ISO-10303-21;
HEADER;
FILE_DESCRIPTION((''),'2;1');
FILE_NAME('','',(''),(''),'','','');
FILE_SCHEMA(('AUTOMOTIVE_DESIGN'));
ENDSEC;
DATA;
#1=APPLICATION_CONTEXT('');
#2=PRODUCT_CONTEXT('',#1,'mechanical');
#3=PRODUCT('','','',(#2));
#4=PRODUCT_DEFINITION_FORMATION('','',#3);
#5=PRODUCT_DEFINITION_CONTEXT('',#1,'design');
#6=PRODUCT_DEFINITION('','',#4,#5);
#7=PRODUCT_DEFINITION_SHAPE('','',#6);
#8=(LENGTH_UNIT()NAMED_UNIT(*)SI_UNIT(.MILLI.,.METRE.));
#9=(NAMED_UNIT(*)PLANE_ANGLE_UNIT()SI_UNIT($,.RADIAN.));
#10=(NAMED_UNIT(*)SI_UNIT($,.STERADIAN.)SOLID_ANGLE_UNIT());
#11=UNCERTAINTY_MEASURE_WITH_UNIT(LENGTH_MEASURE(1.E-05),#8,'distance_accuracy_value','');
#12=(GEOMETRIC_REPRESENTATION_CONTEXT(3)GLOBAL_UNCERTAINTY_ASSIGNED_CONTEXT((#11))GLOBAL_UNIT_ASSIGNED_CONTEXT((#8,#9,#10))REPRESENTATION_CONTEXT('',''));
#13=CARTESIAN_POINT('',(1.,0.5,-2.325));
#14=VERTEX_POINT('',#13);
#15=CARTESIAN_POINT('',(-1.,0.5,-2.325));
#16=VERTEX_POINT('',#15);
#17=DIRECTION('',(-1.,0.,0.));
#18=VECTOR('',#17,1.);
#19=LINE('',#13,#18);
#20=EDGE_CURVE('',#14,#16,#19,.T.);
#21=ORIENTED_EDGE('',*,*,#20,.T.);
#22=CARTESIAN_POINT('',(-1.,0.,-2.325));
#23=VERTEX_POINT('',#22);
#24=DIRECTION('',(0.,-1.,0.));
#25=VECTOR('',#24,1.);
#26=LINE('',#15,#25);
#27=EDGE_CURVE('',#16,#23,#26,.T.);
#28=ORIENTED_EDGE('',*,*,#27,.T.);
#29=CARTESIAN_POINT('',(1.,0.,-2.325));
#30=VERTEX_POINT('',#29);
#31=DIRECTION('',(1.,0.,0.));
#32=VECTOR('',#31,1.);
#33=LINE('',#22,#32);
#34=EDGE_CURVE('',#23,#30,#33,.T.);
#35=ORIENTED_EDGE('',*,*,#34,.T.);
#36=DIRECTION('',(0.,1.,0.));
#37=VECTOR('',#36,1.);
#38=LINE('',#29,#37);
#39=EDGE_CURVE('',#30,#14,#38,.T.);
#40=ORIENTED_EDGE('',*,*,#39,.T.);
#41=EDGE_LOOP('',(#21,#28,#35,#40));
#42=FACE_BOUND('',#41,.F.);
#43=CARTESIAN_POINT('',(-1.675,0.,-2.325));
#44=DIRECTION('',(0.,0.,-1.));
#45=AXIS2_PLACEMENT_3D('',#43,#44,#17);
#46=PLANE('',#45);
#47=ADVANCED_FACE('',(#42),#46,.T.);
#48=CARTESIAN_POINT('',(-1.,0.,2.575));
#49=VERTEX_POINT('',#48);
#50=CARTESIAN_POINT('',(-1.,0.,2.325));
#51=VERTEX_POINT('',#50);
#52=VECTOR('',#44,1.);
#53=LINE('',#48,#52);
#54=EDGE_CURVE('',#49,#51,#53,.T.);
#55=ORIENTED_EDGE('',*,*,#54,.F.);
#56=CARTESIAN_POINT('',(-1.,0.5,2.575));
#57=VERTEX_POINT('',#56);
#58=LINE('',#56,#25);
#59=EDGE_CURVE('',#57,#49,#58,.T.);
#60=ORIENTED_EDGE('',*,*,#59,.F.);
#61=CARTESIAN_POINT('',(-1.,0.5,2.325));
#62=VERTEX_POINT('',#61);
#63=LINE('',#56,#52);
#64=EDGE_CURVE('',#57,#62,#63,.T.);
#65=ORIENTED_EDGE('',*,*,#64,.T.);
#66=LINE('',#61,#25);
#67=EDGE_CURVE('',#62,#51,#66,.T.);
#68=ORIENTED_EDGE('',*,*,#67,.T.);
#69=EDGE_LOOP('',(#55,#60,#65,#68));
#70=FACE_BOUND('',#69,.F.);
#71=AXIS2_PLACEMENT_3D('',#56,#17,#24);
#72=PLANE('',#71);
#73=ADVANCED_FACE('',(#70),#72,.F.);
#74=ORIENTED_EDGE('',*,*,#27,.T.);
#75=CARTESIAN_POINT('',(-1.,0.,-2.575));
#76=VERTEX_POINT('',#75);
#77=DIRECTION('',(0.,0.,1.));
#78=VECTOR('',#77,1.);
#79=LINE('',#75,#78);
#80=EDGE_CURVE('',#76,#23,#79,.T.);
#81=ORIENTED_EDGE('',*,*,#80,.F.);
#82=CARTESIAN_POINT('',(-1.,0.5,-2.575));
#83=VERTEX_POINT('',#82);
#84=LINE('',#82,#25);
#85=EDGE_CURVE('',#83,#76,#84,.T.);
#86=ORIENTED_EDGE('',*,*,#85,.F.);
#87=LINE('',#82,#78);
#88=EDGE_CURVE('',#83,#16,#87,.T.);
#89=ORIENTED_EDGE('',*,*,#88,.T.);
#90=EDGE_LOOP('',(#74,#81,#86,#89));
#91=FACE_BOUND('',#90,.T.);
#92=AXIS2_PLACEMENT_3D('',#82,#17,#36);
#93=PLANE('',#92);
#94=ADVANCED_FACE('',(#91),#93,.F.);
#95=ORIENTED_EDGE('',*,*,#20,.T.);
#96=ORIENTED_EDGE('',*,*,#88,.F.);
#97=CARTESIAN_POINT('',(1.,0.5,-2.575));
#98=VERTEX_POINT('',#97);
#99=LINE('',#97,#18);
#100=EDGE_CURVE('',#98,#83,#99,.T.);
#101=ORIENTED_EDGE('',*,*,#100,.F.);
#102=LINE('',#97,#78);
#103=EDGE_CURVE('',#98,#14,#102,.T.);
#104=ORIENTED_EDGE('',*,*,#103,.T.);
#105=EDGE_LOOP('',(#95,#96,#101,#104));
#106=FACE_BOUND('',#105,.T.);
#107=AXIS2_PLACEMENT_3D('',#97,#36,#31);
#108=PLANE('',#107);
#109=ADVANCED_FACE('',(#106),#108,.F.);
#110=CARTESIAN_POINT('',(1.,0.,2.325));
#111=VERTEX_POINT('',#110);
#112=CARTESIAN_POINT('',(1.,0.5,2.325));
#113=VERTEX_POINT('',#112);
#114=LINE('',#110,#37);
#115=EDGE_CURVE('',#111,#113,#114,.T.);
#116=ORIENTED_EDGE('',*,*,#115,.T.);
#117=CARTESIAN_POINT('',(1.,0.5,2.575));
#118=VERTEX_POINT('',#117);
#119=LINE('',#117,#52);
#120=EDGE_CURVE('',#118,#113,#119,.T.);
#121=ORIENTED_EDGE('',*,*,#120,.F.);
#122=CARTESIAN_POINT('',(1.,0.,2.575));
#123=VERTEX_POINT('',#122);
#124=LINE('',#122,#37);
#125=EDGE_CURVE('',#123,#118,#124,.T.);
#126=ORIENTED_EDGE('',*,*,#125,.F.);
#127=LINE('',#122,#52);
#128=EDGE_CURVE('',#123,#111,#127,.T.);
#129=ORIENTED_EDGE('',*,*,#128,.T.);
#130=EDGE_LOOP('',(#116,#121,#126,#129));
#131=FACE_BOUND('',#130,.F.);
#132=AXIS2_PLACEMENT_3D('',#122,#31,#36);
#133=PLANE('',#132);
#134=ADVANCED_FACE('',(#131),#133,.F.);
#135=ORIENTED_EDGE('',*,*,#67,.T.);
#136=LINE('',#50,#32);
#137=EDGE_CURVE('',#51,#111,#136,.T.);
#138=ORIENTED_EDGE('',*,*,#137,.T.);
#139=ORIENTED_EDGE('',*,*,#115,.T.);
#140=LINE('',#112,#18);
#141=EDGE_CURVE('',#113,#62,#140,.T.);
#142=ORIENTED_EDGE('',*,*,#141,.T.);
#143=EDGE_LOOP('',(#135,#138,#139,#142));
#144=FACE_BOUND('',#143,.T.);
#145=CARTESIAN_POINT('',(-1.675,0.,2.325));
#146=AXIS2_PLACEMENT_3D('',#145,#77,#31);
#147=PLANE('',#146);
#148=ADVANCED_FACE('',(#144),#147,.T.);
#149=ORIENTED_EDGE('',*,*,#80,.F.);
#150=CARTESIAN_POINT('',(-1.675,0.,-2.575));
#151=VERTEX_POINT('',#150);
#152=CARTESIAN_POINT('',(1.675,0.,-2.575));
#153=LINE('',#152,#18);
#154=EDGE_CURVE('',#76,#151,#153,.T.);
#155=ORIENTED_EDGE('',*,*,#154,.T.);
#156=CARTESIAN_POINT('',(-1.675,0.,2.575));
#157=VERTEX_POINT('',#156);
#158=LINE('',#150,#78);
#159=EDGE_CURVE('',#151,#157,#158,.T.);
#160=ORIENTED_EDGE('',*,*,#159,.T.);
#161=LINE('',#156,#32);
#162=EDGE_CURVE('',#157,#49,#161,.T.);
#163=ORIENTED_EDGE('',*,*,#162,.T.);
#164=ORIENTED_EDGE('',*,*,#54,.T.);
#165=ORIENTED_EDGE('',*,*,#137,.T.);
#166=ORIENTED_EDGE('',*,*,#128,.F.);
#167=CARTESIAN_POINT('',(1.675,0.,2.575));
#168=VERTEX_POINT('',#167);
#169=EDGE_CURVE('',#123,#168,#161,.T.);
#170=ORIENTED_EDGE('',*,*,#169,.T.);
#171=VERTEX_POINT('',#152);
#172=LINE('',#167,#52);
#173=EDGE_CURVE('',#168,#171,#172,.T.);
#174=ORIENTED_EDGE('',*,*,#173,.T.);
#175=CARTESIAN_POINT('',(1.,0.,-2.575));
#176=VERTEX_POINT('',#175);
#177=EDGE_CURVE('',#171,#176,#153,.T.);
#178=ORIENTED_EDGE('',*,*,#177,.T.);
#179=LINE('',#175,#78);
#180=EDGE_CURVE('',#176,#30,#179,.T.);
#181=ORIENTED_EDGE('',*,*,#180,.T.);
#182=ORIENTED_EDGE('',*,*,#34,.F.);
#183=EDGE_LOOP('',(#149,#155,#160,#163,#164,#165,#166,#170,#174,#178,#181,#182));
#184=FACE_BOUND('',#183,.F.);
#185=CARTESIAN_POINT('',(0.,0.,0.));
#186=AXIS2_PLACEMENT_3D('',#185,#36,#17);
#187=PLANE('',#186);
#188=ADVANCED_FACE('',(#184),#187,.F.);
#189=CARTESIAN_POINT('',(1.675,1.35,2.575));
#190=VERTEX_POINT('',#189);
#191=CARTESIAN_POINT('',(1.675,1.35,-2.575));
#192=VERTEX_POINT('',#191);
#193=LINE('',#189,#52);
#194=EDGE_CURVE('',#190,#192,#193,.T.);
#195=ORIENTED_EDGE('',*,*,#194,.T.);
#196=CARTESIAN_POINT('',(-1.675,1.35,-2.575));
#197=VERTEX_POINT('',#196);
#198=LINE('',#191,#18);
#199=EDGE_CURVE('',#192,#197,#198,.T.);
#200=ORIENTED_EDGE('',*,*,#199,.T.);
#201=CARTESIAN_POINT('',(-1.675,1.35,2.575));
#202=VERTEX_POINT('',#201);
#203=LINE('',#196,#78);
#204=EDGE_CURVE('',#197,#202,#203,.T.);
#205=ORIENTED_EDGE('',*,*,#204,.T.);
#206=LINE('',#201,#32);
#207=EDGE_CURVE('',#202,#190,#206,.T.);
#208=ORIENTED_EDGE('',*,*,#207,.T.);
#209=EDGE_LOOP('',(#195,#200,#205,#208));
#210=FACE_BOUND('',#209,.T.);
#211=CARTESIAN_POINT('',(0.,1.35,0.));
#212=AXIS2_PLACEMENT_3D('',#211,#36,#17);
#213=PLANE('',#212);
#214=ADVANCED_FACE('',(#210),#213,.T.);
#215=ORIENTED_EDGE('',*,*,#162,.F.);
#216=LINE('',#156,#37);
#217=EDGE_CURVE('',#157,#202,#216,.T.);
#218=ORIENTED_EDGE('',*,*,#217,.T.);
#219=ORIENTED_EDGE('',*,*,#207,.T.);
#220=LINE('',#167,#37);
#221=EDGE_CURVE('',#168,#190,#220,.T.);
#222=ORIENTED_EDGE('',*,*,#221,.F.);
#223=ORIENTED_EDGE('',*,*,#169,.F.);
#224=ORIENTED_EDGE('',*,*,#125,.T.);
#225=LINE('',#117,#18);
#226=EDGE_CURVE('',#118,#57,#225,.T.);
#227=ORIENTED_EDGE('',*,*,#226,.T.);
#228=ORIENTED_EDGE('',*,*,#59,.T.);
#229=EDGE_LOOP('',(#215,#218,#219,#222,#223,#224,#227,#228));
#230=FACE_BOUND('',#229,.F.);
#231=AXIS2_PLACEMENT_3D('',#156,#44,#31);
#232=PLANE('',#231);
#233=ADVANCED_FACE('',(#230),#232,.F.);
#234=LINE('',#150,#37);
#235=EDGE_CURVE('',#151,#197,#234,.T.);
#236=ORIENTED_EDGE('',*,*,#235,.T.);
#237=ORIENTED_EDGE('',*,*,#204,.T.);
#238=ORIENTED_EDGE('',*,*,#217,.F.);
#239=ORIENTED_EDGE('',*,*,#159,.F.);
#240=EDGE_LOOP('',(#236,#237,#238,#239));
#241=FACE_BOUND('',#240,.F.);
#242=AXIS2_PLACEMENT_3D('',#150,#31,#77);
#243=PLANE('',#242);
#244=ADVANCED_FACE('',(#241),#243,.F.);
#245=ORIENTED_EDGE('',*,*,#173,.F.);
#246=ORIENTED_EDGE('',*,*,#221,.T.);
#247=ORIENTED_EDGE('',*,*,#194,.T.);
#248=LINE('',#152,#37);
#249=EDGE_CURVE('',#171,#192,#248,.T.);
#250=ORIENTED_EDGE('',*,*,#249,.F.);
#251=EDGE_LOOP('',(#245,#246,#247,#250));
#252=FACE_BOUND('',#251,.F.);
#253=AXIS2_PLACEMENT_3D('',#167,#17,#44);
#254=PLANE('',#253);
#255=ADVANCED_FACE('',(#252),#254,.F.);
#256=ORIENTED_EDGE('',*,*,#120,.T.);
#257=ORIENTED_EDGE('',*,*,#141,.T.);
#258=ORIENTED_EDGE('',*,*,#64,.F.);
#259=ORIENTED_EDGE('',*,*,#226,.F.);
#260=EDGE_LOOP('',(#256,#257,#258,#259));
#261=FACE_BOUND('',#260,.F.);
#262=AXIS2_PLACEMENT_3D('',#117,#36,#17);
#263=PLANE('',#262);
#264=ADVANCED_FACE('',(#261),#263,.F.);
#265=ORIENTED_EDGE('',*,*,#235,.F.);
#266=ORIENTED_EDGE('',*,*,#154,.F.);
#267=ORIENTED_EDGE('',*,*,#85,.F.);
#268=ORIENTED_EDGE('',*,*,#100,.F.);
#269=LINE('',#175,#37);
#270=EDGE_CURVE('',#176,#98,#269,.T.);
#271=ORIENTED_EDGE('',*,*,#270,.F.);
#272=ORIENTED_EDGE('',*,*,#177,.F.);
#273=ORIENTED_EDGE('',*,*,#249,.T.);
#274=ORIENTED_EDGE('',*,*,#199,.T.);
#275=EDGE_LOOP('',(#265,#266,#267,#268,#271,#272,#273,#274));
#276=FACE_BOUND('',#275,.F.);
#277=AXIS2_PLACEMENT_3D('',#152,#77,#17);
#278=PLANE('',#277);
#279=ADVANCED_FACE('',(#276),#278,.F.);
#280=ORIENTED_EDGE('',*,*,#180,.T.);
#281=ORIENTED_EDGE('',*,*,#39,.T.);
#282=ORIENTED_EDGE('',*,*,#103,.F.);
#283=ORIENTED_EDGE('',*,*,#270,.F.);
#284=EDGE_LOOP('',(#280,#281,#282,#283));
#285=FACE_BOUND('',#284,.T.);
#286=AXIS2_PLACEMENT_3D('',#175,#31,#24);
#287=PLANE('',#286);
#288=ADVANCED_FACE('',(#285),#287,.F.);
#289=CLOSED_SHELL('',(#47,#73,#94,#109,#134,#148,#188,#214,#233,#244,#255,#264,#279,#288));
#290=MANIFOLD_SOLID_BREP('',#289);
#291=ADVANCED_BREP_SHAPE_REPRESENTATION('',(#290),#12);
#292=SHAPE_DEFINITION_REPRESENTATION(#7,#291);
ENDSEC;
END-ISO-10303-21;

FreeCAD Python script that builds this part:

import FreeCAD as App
import Part
import Sketcher

V = App.Vector


def add_polygon(sketch, points):
    """Adds a closed chain of lines whose ends are joined by coincident constraints."""
    first, n = sketch.GeometryCount, len(points)
    for a, b in zip(points, points[1:] + points[:1]):
        sketch.addGeometry(Part.LineSegment(App.Vector(*a, 0), App.Vector(*b, 0)), False)
    for i in range(n):
        sketch.addConstraint(Sketcher.Constraint("Coincident", first + i, 2, first + (i + 1) % n, 1))

doc = App.newDocument("Part")
body = doc.addObject("PartDesign::Body", "Body")

sketch1 = body.newObject("Sketcher::SketchObject", "Sketch")
sketch1.AttachmentSupport = (doc.getObject("XZ_Plane"), [""])
sketch1.MapMode = "FlatFace"
add_polygon(sketch1, [(-1.675, -2.575), (-1.675, 2.575), (1.675, 2.575), (1.675, -2.575)])
sketch1.addConstraint([
    Sketcher.Constraint("Vertical", 0),
    Sketcher.Constraint("Horizontal", 1),
    Sketcher.Constraint("Vertical", 2),
    Sketcher.Constraint("Horizontal", 3),
    Sketcher.Constraint("Symmetric", 0, 2, 2, 2, -1, 1),
    Sketcher.Constraint("DistanceX", 1, 1, 1, 2, 3.35),
    Sketcher.Constraint("DistanceY", 0, 1, 0, 2, 5.15),
])
pad1 = body.newObject("PartDesign::Pad", "Pad")
pad1.Profile = sketch1
pad1.Length = 1.35
pad1.Reversed = True

sketch2 = body.newObject("Sketcher::SketchObject", "Sketch001")
sketch2.AttachmentSupport = (doc.getObject("XY_Plane"), [""])
sketch2.MapMode = "FlatFace"
sketch2.AttachmentOffset = App.Placement(V(0, 0, 2.575), App.Rotation())
add_polygon(sketch2, [(-1, 0.5), (-1, 0), (1, 0), (1, 0.5)])
sketch2.addConstraint([
    Sketcher.Constraint("Vertical", 0),
    Sketcher.Constraint("Horizontal", 1),
    Sketcher.Constraint("Vertical", 2),
    Sketcher.Constraint("Horizontal", 3),
    Sketcher.Constraint("Symmetric", 0, 2, 1, 2, -1, 1),
    Sketcher.Constraint("DistanceX", 1, 1, 1, 2, 2.0),
    Sketcher.Constraint("DistanceY", 0, 2, 0, 1, 0.5),
])
pocket1 = body.newObject("PartDesign::Pocket", "Pocket")
pocket1.Profile = sketch2
pocket1.Length = 0.25
doc.recompute()

mirrored = body.newObject("PartDesign::Mirrored", "Mirrored")
mirrored.Originals = [pocket1]
mirrored.MirrorPlane = (doc.getObject("XY_Plane"), [""])
body.Tip = mirrored

doc.recompute()
